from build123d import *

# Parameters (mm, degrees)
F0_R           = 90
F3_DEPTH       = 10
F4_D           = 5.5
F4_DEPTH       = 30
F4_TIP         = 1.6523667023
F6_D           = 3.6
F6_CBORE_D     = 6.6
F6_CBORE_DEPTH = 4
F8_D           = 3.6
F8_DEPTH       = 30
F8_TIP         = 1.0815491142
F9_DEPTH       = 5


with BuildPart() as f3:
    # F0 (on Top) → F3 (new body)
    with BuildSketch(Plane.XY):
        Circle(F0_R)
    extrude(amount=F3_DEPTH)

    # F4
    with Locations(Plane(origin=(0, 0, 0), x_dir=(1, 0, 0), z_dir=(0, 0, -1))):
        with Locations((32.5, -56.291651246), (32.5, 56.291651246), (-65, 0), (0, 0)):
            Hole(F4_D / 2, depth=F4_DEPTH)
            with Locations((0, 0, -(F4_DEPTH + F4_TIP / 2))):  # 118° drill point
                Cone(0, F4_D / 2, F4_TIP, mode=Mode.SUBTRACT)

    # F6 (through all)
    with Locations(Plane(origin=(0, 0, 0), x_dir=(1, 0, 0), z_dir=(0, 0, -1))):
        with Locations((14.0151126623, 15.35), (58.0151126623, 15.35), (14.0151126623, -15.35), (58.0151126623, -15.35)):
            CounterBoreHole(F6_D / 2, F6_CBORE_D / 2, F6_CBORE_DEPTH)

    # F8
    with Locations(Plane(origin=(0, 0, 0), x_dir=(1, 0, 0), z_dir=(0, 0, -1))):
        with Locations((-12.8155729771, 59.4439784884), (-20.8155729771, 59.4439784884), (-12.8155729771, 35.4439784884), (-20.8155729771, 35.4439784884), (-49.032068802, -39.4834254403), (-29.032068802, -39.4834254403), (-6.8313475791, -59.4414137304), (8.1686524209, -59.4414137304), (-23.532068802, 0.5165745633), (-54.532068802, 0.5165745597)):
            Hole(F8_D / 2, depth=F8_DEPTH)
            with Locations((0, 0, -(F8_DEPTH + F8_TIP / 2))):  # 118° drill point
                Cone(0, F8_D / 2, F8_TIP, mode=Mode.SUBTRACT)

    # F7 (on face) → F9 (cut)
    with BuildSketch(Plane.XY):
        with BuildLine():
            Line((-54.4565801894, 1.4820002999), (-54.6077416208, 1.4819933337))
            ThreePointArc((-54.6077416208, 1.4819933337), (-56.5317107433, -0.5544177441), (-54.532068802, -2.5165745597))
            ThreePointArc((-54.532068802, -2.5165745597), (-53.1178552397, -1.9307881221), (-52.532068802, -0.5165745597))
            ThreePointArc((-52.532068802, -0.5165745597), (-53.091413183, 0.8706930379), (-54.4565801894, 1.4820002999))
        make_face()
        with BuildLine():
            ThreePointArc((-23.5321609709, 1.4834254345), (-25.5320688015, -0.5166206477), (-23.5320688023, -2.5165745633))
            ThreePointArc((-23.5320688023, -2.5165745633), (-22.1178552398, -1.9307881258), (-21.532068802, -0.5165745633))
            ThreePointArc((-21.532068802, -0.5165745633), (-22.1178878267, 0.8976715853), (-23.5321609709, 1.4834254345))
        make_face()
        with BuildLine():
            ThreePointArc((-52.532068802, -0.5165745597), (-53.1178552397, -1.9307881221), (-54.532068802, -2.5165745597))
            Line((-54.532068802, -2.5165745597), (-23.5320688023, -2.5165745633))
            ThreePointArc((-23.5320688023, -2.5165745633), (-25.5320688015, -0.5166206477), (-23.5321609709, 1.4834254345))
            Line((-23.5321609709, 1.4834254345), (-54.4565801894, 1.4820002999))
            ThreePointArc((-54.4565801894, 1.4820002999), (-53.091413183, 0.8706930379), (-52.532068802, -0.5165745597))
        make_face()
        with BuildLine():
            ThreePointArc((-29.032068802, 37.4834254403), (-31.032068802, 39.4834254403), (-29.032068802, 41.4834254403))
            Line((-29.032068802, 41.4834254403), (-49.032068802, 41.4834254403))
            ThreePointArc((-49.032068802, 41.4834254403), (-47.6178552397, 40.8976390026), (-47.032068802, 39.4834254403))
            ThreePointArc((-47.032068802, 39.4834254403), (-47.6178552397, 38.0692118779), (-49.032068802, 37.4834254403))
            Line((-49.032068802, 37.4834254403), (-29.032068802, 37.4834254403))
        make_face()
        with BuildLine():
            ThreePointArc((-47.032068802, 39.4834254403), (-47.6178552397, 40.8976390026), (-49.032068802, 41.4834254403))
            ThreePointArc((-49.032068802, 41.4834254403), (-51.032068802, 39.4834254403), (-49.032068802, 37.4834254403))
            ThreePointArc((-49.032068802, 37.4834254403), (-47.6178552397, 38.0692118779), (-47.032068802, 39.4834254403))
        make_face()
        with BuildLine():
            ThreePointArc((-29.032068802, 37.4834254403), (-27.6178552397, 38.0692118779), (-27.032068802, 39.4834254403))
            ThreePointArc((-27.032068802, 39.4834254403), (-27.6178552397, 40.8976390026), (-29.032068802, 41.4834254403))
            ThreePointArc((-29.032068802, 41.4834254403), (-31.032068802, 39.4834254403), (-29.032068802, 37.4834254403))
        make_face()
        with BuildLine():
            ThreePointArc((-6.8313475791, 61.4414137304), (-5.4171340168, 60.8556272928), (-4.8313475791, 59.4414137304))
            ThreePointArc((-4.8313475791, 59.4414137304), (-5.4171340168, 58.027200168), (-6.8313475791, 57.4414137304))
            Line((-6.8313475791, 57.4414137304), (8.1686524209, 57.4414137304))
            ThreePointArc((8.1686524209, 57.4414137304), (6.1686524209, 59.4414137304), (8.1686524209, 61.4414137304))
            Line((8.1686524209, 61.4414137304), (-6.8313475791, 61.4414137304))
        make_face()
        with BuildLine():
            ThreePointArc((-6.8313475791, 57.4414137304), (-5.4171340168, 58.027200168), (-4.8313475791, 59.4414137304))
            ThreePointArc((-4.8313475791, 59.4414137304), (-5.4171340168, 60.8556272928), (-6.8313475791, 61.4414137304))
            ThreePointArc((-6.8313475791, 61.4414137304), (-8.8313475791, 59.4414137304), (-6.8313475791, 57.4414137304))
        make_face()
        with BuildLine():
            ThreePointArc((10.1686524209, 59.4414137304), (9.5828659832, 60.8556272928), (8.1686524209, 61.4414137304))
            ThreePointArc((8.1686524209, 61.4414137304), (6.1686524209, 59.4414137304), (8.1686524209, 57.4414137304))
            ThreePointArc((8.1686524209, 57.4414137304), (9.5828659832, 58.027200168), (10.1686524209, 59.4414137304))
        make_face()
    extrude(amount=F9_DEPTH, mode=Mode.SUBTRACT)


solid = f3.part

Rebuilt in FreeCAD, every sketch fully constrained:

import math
import FreeCAD as App
import Part
import Sketcher
from FreeCAD import Vector

doc = App.newDocument("Part")
params = doc.addObject("Spreadsheet::Sheet", "Params")
for row, (alias, value) in enumerate([
    ("sketch1_diameter", "180 mm"),
    ("pad1_length", "10 mm"),
    ("sketch2_diameter", "5.5 mm"),
    ("hole_diameter", "5.5 mm"),
    ("hole_depth", "30 mm"),
    ("sketch3_diameter", "3.6 mm"),
    ("hole2_diameter", "3.6 mm"),
    ("hole2_cbore_diameter", "6.6 mm"),
    ("hole2_cbore_depth", "4 mm"),
    ("sketch4_diameter", "3.6 mm"),
    ("hole3_diameter", "3.6 mm"),
    ("hole3_depth", "30 mm"),
    ("sketch5_radius", "2 mm"),
    ("sketch5_width", "31 mm"),
    ("sketch5_width2", "20 mm"),
    ("sketch5_width3", "15 mm"),
    ("pocket1_length", "5 mm"),
], start=1):
    params.set(f"A{row}", alias)
    params.set(f"B{row}", "=" + value)
    params.setAlias(f"B{row}", alias)

body = doc.addObject("PartDesign::Body", "Body")

# Sketch on XY plane
sketch1 = body.newObject("Sketcher::SketchObject", "Sketch")
sketch1.AttachmentSupport = (doc.getObject("XY_Plane"), [""])
sketch1.MapMode = "FlatFace"
sketch1.addGeometry(Part.Circle(Vector(0, 0, 0), Vector(0, 0, 1), 90), False)
sketch1.addConstraint(Sketcher.Constraint("Coincident", 0, 3, -1, 1))
sketch1.addConstraint(Sketcher.Constraint("Diameter", 0, 180.0))
sketch1.setExpression("Constraints[1]", "Params.sketch1_diameter")
pad1 = body.newObject("PartDesign::Pad", "Pad")
pad1.Profile = sketch1
pad1.setExpression("Length", "Params.pad1_length")

# Sketch on XY plane
sketch2 = body.newObject("Sketcher::SketchObject", "Sketch001")
sketch2.AttachmentSupport = (doc.getObject("XY_Plane"), [""])
sketch2.MapMode = "FlatFace"
sketch2.addGeometry(Part.Circle(Vector(32.5, 56.291651, 0), Vector(0, 0, 1), 2.75), False)
sketch2.addGeometry(Part.Circle(Vector(32.5, -56.291651, 0), Vector(0, 0, 1), 2.75), False)
sketch2.addGeometry(Part.Circle(Vector(-65, 0, 0), Vector(0, 0, 1), 2.75), False)
sketch2.addGeometry(Part.Circle(Vector(0, 0, 0), Vector(0, 0, 1), 2.75), False)
sketch2.addConstraint(Sketcher.Constraint("Coincident", 3, 3, -1, 1))
sketch2.addConstraint(Sketcher.Constraint("Equal", 0, 1))
sketch2.addConstraint(Sketcher.Constraint("Equal", 1, 2))
sketch2.addConstraint(Sketcher.Constraint("Equal", 2, 3))
sketch2.addConstraint(Sketcher.Constraint("Symmetric", 0, 3, 1, 3, -1))
sketch2.addConstraint(Sketcher.Constraint("PointOnObject", 2, 3, -1))
sketch2.addConstraint(Sketcher.Constraint("Diameter", 0, 5.5))
sketch2.addConstraint(Sketcher.Constraint("DistanceX", 2, 3, -1, 1, 65.0))
sketch2.addConstraint(Sketcher.Constraint("DistanceX", -1, 1, 0, 3, 32.5))
sketch2.addConstraint(Sketcher.Constraint("DistanceY", -1, 1, 0, 3, 56.291651))
sketch2.setExpression("Constraints[6]", "Params.sketch2_diameter")
doc.recompute()
hole = body.newObject("PartDesign::Hole", "Hole")
hole.Profile = sketch2
hole.ThreadType = "None"
hole.setExpression("Diameter", "Params.hole_diameter")
hole.DepthType = "Dimension"
hole.setExpression("Depth", "Params.hole_depth")
hole.DrillPoint = "Angled"
hole.DrillPointAngle = 118
hole.Reversed = True

# Sketch on XY plane
sketch3 = body.newObject("Sketcher::SketchObject", "Sketch002")
sketch3.AttachmentSupport = (doc.getObject("XY_Plane"), [""])
sketch3.MapMode = "FlatFace"
sketch3.addGeometry(Part.Circle(Vector(14.015113, -15.35, 0), Vector(0, 0, 1), 1.8), False)
sketch3.addGeometry(Part.Circle(Vector(58.015113, -15.35, 0), Vector(0, 0, 1), 1.8), False)
sketch3.addGeometry(Part.Circle(Vector(14.015113, 15.35, 0), Vector(0, 0, 1), 1.8), False)
sketch3.addGeometry(Part.Circle(Vector(58.015113, 15.35, 0), Vector(0, 0, 1), 1.8), False)
sketch3.addConstraint(Sketcher.Constraint("Equal", 0, 1))
sketch3.addConstraint(Sketcher.Constraint("Equal", 1, 2))
sketch3.addConstraint(Sketcher.Constraint("Equal", 2, 3))
sketch3.addConstraint(Sketcher.Constraint("Symmetric", 0, 3, 2, 3, -1))
sketch3.addConstraint(Sketcher.Constraint("Symmetric", 1, 3, 3, 3, -1))
sketch3.addConstraint(Sketcher.Constraint("Horizontal", 0, 3, 1, 3))
sketch3.addConstraint(Sketcher.Constraint("Diameter", 0, 3.6))
sketch3.addConstraint(Sketcher.Constraint("DistanceX", 0, 3, 1, 3, 44.0))
sketch3.addConstraint(Sketcher.Constraint("DistanceY", 0, 3, 2, 3, 30.7))
sketch3.addConstraint(Sketcher.Constraint("DistanceX", -1, 1, 0, 3, 14.015113))
sketch3.setExpression("Constraints[6]", "Params.sketch3_diameter")
doc.recompute()
hole2 = body.newObject("PartDesign::Hole", "Hole001")
hole2.Profile = sketch3
hole2.ThreadType = "None"
hole2.setExpression("Diameter", "Params.hole2_diameter")
hole2.DepthType = "ThroughAll"
hole2.HoleCutType = "Counterbore"
hole2.setExpression("HoleCutDiameter", "Params.hole2_cbore_diameter")
hole2.setExpression("HoleCutDepth", "Params.hole2_cbore_depth")
hole2.Reversed = True

# Sketch on XY plane
sketch4 = body.newObject("Sketcher::SketchObject", "Sketch003")
sketch4.AttachmentSupport = (doc.getObject("XY_Plane"), [""])
sketch4.MapMode = "FlatFace"
sketch4.addGeometry(Part.Circle(Vector(-12.815573, -59.443978, 0), Vector(0, 0, 1), 1.8), False)
sketch4.addGeometry(Part.Circle(Vector(-20.815573, -59.443978, 0), Vector(0, 0, 1), 1.8), False)
sketch4.addGeometry(Part.Circle(Vector(-12.815573, -35.443978, 0), Vector(0, 0, 1), 1.8), False)
sketch4.addGeometry(Part.Circle(Vector(-20.815573, -35.443978, 0), Vector(0, 0, 1), 1.8), False)
sketch4.addGeometry(Part.Circle(Vector(-49.032069, 39.483425, 0), Vector(0, 0, 1), 1.8), False)
sketch4.addGeometry(Part.Circle(Vector(-29.032069, 39.483425, 0), Vector(0, 0, 1), 1.8), False)
sketch4.addGeometry(Part.Circle(Vector(-6.831348, 59.441414, 0), Vector(0, 0, 1), 1.8), False)
sketch4.addGeometry(Part.Circle(Vector(8.168652, 59.441414, 0), Vector(0, 0, 1), 1.8), False)
sketch4.addGeometry(Part.Circle(Vector(-23.532069, -0.516575, 0), Vector(0, 0, 1), 1.8), False)
sketch4.addGeometry(Part.Circle(Vector(-54.532069, -0.516575, 0), Vector(0, 0, 1), 1.8), False)
sketch4.addConstraint(Sketcher.Constraint("Equal", 0, 1))
sketch4.addConstraint(Sketcher.Constraint("Equal", 1, 2))
sketch4.addConstraint(Sketcher.Constraint("Equal", 2, 3))
sketch4.addConstraint(Sketcher.Constraint("Equal", 3, 4))
sketch4.addConstraint(Sketcher.Constraint("Equal", 4, 5))
sketch4.addConstraint(Sketcher.Constraint("Equal", 5, 6))
sketch4.addConstraint(Sketcher.Constraint("Equal", 6, 7))
sketch4.addConstraint(Sketcher.Constraint("Equal", 7, 8))
sketch4.addConstraint(Sketcher.Constraint("Equal", 8, 9))
sketch4.addConstraint(Sketcher.Constraint("Horizontal", 0, 3, 1, 3))
sketch4.addConstraint(Sketcher.Constraint("Horizontal", 2, 3, 3, 3))
sketch4.addConstraint(Sketcher.Constraint("Horizontal", 4, 3, 5, 3))
sketch4.addConstraint(Sketcher.Constraint("Horizontal", 6, 3, 7, 3))
sketch4.addConstraint(Sketcher.Constraint("Horizontal", 8, 3, 9, 3))
sketch4.addConstraint(Sketcher.Constraint("Vertical", 0, 3, 2, 3))
sketch4.addConstraint(Sketcher.Constraint("Vertical", 1, 3, 3, 3))
sketch4.addConstraint(Sketcher.Constraint("Diameter", 0, 3.6))
sketch4.addConstraint(Sketcher.Constraint("DistanceX", 1, 3, 0, 3, 8.0))
sketch4.addConstraint(Sketcher.Constraint("DistanceY", 0, 3, 2, 3, 24.0))
sketch4.addConstraint(Sketcher.Constraint("DistanceX", 4, 3, 5, 3, 20.0))
sketch4.addConstraint(Sketcher.Constraint("DistanceX", 6, 3, 7, 3, 15.0))
sketch4.addConstraint(Sketcher.Constraint("DistanceY", 8, 3, 5, 3, 40.0))
sketch4.addConstraint(Sketcher.Constraint("DistanceX", 9, 3, 8, 3, 31.0))
sketch4.addConstraint(Sketcher.Constraint("DistanceX", 5, 3, 8, 3, 5.5))
sketch4.addConstraint(Sketcher.Constraint("DistanceY", 0, 3, -1, 1, 59.443978))
sketch4.addConstraint(Sketcher.Constraint("DistanceX", 4, 3, -1, 1, 49.032069))
sketch4.addConstraint(Sketcher.Constraint("DistanceX", 5, 3, 6, 3, 22.200721))
sketch4.addConstraint(Sketcher.Constraint("DistanceY", 5, 3, 6, 3, 19.957988))
sketch4.addConstraint(Sketcher.Constraint("DistanceX", 0, 3, -1, 1, 12.815573))
sketch4.addConstraint(Sketcher.Constraint("DistanceY", -1, 1, 4, 3, 39.483425))
sketch4.setExpression("Constraints[16]", "Params.sketch4_diameter")
doc.recompute()
hole3 = body.newObject("PartDesign::Hole", "Hole002")
hole3.Profile = sketch4
hole3.ThreadType = "None"
hole3.setExpression("Diameter", "Params.hole3_diameter")
hole3.DepthType = "Dimension"
hole3.setExpression("Depth", "Params.hole3_depth")
hole3.DrillPoint = "Angled"
hole3.DrillPointAngle = 118
hole3.Reversed = True

# Sketch on XY plane
sketch5 = body.newObject("Sketcher::SketchObject", "Sketch004")
sketch5.AttachmentSupport = (doc.getObject("XY_Plane"), [""])
sketch5.MapMode = "FlatFace"
sketch5.addGeometry(Part.LineSegment(Vector(-54.45658, 1.482, 0), Vector(-54.607742, 1.481993, 0)), False)
sketch5.addGeometry(Part.ArcOfCircle(Part.Circle(Vector(-54.532069, -0.516575, 0), Vector(0, 0, 1), 2), math.radians(92.168384), math.radians(270)), False)
sketch5.addGeometry(Part.LineSegment(Vector(-54.532069, -2.516575, 0), Vector(-23.532069, -2.516575, 0)), False)
sketch5.addGeometry(Part.ArcOfCircle(Part.Circle(Vector(-23.532069, -0.516575, 0), Vector(0, 0, 1), 2), math.radians(-90), math.radians(0)), False)
sketch5.addGeometry(Part.ArcOfCircle(Part.Circle(Vector(-23.532069, -0.516575, 0), Vector(0, 0, 1), 2), math.radians(0), math.radians(90.00264)), False)
sketch5.addGeometry(Part.LineSegment(Vector(-23.532161, 1.483425, 0), Vector(-54.45658, 1.482, 0)), False)
sketch5.addGeometry(Part.LineSegment(Vector(-29.032069, 41.483425, 0), Vector(-49.032069, 41.483425, 0)), False)
sketch5.addGeometry(Part.ArcOfCircle(Part.Circle(Vector(-49.032069, 39.483425, 0), Vector(0, 0, 1), 2), math.radians(90), math.radians(270)), False)
sketch5.addGeometry(Part.LineSegment(Vector(-49.032069, 37.483425, 0), Vector(-29.032069, 37.483425, 0)), False)
sketch5.addGeometry(Part.ArcOfCircle(Part.Circle(Vector(-29.032069, 39.483425, 0), Vector(0, 0, 1), 2), math.radians(-90), math.radians(0)), False)
sketch5.addGeometry(Part.ArcOfCircle(Part.Circle(Vector(-29.032069, 39.483425, 0), Vector(0, 0, 1), 2), math.radians(0), math.radians(90)), False)
sketch5.addGeometry(Part.LineSegment(Vector(-6.831348, 57.441414, 0), Vector(8.168652, 57.441414, 0)), False)
sketch5.addGeometry(Part.ArcOfCircle(Part.Circle(Vector(8.168652, 59.441414, 0), Vector(0, 0, 1), 2), math.radians(-90), math.radians(0)), False)
sketch5.addGeometry(Part.ArcOfCircle(Part.Circle(Vector(8.168652, 59.441414, 0), Vector(0, 0, 1), 2), math.radians(0), math.radians(90)), False)
sketch5.addGeometry(Part.LineSegment(Vector(8.168652, 61.441414, 0), Vector(-6.831348, 61.441414, 0)), False)
sketch5.addGeometry(Part.ArcOfCircle(Part.Circle(Vector(-6.831348, 59.441414, 0), Vector(0, 0, 1), 2), math.radians(90), math.radians(270)), False)
sketch5.addConstraint(Sketcher.Constraint("Coincident", 0, 2, 1, 1))
sketch5.addConstraint(Sketcher.Constraint("Tangent", 1, 2, 2, 1))
sketch5.addConstraint(Sketcher.Constraint("Tangent", 2, 2, 3, 1))
sketch5.addConstraint(Sketcher.Constraint("Tangent", 3, 2, 4, 1))
sketch5.addConstraint(Sketcher.Constraint("Tangent", 4, 2, 5, 1))
sketch5.addConstraint(Sketcher.Constraint("Coincident", 5, 2, 0, 1))
sketch5.addConstraint(Sketcher.Constraint("Tangent", 6, 2, 7, 1))
sketch5.addConstraint(Sketcher.Constraint("Tangent", 7, 2, 8, 1))
sketch5.addConstraint(Sketcher.Constraint("Tangent", 8, 2, 9, 1))
sketch5.addConstraint(Sketcher.Constraint("Tangent", 9, 2, 10, 1))
sketch5.addConstraint(Sketcher.Constraint("Tangent", 10, 2, 6, 1))
sketch5.addConstraint(Sketcher.Constraint("Tangent", 11, 2, 12, 1))
sketch5.addConstraint(Sketcher.Constraint("Tangent", 12, 2, 13, 1))
sketch5.addConstraint(Sketcher.Constraint("Tangent", 13, 2, 14, 1))
sketch5.addConstraint(Sketcher.Constraint("Tangent", 14, 2, 15, 1))
sketch5.addConstraint(Sketcher.Constraint("Tangent", 15, 2, 11, 1))
sketch5.addConstraint(Sketcher.Constraint("Horizontal", 2))
sketch5.addConstraint(Sketcher.Constraint("Horizontal", 6))
sketch5.addConstraint(Sketcher.Constraint("Horizontal", 8))
sketch5.addConstraint(Sketcher.Constraint("Horizontal", 11))
sketch5.addConstraint(Sketcher.Constraint("Horizontal", 14))
sketch5.addConstraint(Sketcher.Constraint("Equal", 1, 3))
sketch5.addConstraint(Sketcher.Constraint("Equal", 3, 4))
sketch5.addConstraint(Sketcher.Constraint("Equal", 4, 7))
sketch5.addConstraint(Sketcher.Constraint("Equal", 7, 9))
sketch5.addConstraint(Sketcher.Constraint("Equal", 10, 12))
sketch5.addConstraint(Sketcher.Constraint("Equal", 12, 13))
sketch5.addConstraint(Sketcher.Constraint("Parallel", 0, 5))
sketch5.addConstraint(Sketcher.Constraint("Horizontal", 4, 3, 3, 2))
sketch5.addConstraint(Sketcher.Constraint("Horizontal", 10, 3, 9, 2))
sketch5.addConstraint(Sketcher.Constraint("Horizontal", 15, 3, 12, 2))
sketch5.addConstraint(Sketcher.Constraint("Radius", 1, 2.0))
sketch5.addConstraint(Sketcher.Constraint("DistanceX", 2, 1, 2, 2, 31.0))
sketch5.addConstraint(Sketcher.Constraint("DistanceX", 6, 2, 6, 1, 20.0))
sketch5.addConstraint(Sketcher.Constraint("DistanceX", 11, 1, 11, 2, 15.0))
sketch5.addConstraint(Sketcher.Constraint("DistanceY", 1, 3, 7, 3, 40.0))
sketch5.addConstraint(Sketcher.Constraint("DistanceX", 1, 3, 7, 3, 5.5))
sketch5.addConstraint(Sketcher.Constraint("DistanceY", -1, 1, 5, 2, 1.482))
sketch5.addConstraint(Sketcher.Constraint("Distance", 0, 0.151161))
sketch5.addConstraint(Sketcher.Constraint("Distance", 5, 30.924419))
sketch5.addConstraint(Sketcher.Constraint("DistanceX", 1, 3, -1, 1, 54.532069))
sketch5.addConstraint(Sketcher.Constraint("DistanceX", 9, 3, 12, 3, 37.200721))
sketch5.addConstraint(Sketcher.Constraint("DistanceY", 9, 3, 12, 3, 19.957988))
sketch5.setExpression("Constraints[31]", "Params.sketch5_radius")
sketch5.setExpression("Constraints[32]", "Params.sketch5_width")
sketch5.setExpression("Constraints[33]", "Params.sketch5_width2")
sketch5.setExpression("Constraints[34]", "Params.sketch5_width3")
pocket1 = body.newObject("PartDesign::Pocket", "Pocket")
pocket1.Profile = sketch5
pocket1.setExpression("Length", "Params.pocket1_length")
pocket1.Reversed = True

doc.recompute()
